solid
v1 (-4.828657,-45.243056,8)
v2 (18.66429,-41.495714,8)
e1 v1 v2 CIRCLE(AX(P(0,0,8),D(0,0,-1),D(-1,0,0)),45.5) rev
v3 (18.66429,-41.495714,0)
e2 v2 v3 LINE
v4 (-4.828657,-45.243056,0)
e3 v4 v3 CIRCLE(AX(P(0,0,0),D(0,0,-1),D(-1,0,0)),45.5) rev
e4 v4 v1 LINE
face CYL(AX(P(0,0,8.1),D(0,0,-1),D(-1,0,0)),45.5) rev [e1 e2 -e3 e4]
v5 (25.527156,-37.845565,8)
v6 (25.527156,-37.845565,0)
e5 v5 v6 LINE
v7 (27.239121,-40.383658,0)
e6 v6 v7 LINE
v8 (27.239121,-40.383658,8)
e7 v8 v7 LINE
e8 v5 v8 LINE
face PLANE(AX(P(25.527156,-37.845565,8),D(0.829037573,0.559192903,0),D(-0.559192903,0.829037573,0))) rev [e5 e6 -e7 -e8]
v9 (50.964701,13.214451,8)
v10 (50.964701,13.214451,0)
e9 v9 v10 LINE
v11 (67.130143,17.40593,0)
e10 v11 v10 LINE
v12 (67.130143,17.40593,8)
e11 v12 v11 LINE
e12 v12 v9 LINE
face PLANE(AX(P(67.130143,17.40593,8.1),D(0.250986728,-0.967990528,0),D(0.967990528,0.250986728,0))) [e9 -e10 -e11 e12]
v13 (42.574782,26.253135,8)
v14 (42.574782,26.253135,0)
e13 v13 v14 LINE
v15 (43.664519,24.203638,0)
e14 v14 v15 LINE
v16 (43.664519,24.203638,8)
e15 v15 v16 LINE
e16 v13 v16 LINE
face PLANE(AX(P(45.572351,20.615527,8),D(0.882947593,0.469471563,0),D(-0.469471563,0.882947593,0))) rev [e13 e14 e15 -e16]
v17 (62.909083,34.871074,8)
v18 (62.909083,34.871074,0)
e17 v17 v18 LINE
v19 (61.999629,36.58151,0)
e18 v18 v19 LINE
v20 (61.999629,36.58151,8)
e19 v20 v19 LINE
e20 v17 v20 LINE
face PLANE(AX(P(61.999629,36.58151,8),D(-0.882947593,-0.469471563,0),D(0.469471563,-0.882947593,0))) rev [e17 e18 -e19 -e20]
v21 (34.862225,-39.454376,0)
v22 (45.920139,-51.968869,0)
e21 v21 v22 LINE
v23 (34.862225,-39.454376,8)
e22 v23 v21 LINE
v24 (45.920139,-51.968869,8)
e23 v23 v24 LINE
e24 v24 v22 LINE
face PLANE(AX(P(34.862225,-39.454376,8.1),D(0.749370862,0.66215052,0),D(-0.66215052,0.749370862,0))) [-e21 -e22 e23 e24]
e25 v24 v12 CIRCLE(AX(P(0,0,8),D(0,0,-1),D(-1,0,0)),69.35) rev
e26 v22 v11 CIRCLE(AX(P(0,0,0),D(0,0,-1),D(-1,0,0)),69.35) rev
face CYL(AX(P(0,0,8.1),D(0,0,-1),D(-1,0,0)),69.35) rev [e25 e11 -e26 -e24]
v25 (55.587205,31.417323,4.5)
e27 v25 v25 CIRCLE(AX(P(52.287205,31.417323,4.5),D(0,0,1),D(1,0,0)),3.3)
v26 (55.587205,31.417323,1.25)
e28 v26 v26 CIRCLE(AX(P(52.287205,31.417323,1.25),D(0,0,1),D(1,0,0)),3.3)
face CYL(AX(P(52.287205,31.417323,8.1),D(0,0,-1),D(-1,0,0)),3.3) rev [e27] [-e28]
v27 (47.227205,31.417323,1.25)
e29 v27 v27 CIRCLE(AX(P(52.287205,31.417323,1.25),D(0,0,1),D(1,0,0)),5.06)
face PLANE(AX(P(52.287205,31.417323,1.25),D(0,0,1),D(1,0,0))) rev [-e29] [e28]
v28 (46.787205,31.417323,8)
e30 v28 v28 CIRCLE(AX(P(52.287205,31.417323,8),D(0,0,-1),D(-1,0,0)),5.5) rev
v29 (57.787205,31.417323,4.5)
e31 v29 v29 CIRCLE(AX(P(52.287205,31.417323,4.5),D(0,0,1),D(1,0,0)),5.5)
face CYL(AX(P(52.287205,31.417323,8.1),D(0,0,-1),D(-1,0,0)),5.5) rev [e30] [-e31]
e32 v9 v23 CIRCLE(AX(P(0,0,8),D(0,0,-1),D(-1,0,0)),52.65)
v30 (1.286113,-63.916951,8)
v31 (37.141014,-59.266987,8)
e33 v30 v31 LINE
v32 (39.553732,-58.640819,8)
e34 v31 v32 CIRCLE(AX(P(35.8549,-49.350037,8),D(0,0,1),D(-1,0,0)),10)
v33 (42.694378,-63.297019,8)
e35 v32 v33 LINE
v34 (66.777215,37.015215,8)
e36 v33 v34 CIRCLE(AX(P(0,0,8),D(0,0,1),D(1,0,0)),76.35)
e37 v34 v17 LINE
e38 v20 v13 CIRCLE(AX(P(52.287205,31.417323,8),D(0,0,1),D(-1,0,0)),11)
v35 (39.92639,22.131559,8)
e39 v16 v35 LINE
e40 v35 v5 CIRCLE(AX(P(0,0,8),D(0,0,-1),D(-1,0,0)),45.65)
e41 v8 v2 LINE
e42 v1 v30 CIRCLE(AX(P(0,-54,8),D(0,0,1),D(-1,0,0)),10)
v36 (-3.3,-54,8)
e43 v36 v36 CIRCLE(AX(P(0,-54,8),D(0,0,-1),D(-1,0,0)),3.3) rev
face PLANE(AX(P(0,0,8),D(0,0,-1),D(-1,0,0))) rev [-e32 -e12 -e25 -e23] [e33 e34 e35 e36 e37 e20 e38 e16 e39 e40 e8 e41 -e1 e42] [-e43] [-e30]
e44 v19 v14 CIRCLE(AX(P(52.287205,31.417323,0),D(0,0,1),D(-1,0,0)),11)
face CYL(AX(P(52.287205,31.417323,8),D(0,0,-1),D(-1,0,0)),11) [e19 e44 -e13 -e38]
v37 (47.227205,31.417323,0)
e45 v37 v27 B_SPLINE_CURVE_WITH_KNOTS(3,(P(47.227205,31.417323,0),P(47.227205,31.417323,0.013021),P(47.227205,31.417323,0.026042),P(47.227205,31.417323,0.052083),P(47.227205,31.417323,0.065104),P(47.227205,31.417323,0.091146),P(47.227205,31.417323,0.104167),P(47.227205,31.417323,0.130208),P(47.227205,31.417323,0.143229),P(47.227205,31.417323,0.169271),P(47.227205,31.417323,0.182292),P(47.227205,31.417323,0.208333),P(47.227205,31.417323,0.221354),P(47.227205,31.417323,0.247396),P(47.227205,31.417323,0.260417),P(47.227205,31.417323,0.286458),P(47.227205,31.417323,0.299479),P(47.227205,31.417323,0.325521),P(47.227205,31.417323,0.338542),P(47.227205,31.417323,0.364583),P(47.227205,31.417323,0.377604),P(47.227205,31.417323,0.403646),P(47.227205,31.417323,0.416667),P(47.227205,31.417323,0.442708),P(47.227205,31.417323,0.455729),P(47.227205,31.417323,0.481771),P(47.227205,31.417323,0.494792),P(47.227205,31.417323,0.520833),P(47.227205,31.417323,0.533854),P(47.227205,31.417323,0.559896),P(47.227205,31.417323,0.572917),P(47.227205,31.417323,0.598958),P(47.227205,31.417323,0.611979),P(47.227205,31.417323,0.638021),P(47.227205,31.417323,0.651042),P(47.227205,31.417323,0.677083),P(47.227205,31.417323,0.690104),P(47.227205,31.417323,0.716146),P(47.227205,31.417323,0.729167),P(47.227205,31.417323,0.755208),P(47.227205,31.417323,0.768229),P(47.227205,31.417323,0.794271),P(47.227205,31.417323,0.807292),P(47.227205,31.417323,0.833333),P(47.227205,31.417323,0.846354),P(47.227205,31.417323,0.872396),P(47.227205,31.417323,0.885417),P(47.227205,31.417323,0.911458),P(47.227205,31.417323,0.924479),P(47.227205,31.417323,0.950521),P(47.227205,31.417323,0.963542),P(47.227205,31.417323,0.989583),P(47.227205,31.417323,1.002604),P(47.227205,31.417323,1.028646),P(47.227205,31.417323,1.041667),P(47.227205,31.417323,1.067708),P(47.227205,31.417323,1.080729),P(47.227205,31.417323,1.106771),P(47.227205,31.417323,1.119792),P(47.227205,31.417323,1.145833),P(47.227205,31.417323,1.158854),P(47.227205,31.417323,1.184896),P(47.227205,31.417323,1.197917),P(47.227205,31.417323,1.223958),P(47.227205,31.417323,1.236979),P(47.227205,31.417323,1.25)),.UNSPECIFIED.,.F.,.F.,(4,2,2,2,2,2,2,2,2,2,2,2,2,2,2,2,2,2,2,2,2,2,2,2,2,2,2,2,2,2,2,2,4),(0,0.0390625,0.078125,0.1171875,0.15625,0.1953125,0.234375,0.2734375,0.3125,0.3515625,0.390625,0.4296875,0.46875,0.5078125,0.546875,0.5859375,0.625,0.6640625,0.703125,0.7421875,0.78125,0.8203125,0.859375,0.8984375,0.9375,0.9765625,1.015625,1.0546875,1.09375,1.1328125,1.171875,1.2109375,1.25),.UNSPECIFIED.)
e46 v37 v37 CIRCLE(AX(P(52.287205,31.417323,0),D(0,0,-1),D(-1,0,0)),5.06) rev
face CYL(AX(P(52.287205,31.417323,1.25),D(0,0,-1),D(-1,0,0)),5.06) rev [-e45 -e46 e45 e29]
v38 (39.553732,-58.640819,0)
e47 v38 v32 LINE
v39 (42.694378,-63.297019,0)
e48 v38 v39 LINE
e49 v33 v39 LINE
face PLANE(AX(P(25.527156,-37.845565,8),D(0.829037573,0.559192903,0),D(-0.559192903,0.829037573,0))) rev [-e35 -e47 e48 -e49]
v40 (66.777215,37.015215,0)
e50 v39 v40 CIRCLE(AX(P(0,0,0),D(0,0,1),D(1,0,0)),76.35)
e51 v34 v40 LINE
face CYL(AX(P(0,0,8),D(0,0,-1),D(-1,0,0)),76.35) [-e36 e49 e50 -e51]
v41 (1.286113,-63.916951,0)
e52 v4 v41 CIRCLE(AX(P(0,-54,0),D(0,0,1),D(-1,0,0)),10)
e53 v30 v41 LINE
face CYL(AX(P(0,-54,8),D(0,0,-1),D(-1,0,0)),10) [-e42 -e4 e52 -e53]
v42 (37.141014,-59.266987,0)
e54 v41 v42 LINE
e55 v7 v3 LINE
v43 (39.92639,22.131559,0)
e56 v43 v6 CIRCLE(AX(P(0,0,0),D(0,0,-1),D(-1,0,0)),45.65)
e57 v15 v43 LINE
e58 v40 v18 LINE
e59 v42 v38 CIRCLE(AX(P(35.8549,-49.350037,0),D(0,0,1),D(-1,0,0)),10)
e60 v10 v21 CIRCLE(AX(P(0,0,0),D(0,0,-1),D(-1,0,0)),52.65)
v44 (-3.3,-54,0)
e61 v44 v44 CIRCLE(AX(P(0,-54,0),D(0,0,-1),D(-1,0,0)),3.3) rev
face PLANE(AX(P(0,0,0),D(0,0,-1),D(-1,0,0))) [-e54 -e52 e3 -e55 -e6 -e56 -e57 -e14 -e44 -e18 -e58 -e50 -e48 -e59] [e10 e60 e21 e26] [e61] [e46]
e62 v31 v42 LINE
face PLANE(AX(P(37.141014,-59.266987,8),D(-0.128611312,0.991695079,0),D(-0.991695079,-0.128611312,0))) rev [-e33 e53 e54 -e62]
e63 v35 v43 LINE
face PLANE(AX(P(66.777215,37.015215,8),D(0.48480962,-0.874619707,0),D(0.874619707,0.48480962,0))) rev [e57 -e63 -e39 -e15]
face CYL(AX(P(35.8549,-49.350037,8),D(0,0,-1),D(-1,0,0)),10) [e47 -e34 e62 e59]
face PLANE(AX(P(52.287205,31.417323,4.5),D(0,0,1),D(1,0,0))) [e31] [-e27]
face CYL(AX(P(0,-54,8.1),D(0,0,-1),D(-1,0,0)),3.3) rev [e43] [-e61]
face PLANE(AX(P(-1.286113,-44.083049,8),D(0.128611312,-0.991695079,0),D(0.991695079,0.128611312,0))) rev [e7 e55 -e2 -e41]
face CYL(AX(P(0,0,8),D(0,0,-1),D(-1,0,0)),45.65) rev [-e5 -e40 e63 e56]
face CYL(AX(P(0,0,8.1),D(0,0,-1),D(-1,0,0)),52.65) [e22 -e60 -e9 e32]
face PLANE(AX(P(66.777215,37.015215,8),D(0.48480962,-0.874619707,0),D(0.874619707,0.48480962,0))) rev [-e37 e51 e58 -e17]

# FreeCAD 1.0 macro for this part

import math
import FreeCAD as App
import Part
import Sketcher
Q = App.Units.Quantity

doc = App.newDocument("Part")
params = doc.addObject("Spreadsheet::Sheet", "Params")
for row, (alias, value) in enumerate([
    ("sketch1_radius", "76.35 mm"),
    ("sketch1_radius2", "45.65 mm"),
    ("pad1_length", "8 mm"),
    ("sketch2_radius", "10 mm"),
    ("pad2_length", "8 mm"),
    ("sketch3_radius", "11 mm"),
    ("pad3_length", "8 mm"),
    ("sketch4_diameter", "91 mm"),
    ("pocket1_length", "8.2 mm"),
    ("sketch5_radius", "69.35 mm"),
    ("sketch5_radius2", "52.65 mm"),
    ("pocket2_length", "8.2 mm"),
    ("sketch6_diameter", "6.6 mm"),
    ("pocket3_length", "8.2 mm"),
    ("sketch7_diameter", "10.12 mm"),
    ("pocket4_length", "1.35 mm"),
    ("sketch8_diameter", "11 mm"),
    ("pocket5_length", "3.6 mm"),
], start=1):
    params.set(f"A{row}", alias)
    params.set(f"B{row}", "=" + value)
    params.setAlias(f"B{row}", alias)

body = doc.addObject("PartDesign::Body", "Body")

# Sketch on XY plane
sketch1 = doc.addObject("Sketcher::SketchObject", "Sketch")
body.addObject(sketch1)
sketch1.AttachmentSupport = (doc.XY_Plane, [""])
sketch1.MapMode = "FlatFace"
sketch1.addGeometry([
    Part.LineSegment(App.Vector(26, -38, 0), App.Vector(43, -63, 0)),
    Part.ArcOfCircle(Part.Circle(App.Vector(0, 0, 0), App.Vector(0, 0, 1), 76), math.radians(-56), math.radians(29)),
    Part.LineSegment(App.Vector(67, 37, 0), App.Vector(40, 22, 0)),
    Part.ArcOfCircle(Part.Circle(App.Vector(0, 0, 0), App.Vector(0, 0, 1), 46), math.radians(-56), math.radians(29)),
], False)
sketch1.addConstraint([
    Sketcher.Constraint("Coincident", 0, 2, 1, 1),
    Sketcher.Constraint("Coincident", 1, 2, 2, 1),
    Sketcher.Constraint("Coincident", 2, 2, 3, 2),
    Sketcher.Constraint("Coincident", 3, 1, 0, 1),
    Sketcher.Constraint("Coincident", 1, 3, -1, 1),
    Sketcher.Constraint("Coincident", 3, 3, -1, 1),
    Sketcher.Constraint("Angle", 0, Q("-56 deg")),
    Sketcher.Constraint("Angle", 2, Q("-151 deg")),
    Sketcher.Constraint("Radius", 1, Q("76.35 mm")),
    Sketcher.Constraint("Radius", 3, Q("45.65 mm")),
    Sketcher.Constraint("DistanceX", -1, 1, 0, 2, Q("42.694378 mm")),
    Sketcher.Constraint("DistanceX", -1, 1, 2, 2, Q("39.92639 mm")),
])
sketch1.setExpression("Constraints[8]", "Params.sketch1_radius")
sketch1.setExpression("Constraints[9]", "Params.sketch1_radius2")
pad1 = doc.addObject("PartDesign::Pad", "Pad")
body.addObject(pad1)
pad1.Profile = sketch1
pad1.setExpression("Length", "Params.pad1_length")

# Sketch on XY plane
sketch2 = doc.addObject("Sketcher::SketchObject", "Sketch001")
body.addObject(sketch2)
sketch2.AttachmentSupport = (doc.XY_Plane, [""])
sketch2.MapMode = "FlatFace"
sketch2.addGeometry([
    Part.LineSegment(App.Vector(35, -39, 0), App.Vector(-1, -44, 0)),
    Part.ArcOfCircle(Part.Circle(App.Vector(0, -54, 0), App.Vector(0, 0, 1), 10), math.radians(97), math.radians(277)),
    Part.LineSegment(App.Vector(1, -64, 0), App.Vector(37, -59, 0)),
    Part.ArcOfCircle(Part.Circle(App.Vector(36, -49, 0), App.Vector(0, 0, 1), 10), math.radians(-83), math.radians(97)),
], False)
sketch2.addConstraint([
    Sketcher.Constraint("Tangent", 0, 2, 1, 1),
    Sketcher.Constraint("Tangent", 1, 2, 2, 1),
    Sketcher.Constraint("Tangent", 2, 2, 3, 1),
    Sketcher.Constraint("Tangent", 3, 2, 0, 1),
    Sketcher.Constraint("Equal", 1, 3),
    Sketcher.Constraint("PointOnObject", 1, 3, -2),
    Sketcher.Constraint("Radius", 1, Q("10 mm")),
    Sketcher.Constraint("DistanceY", 1, 3, -1, 1, Q("54 mm")),
    Sketcher.Constraint("DistanceX", -1, 1, 3, 3, Q("35.8549 mm")),
    Sketcher.Constraint("DistanceY", 1, 2, 0, 2, Q("19.833902 mm")),
])
sketch2.setExpression("Constraints[6]", "Params.sketch2_radius")
pad2 = doc.addObject("PartDesign::Pad", "Pad001")
body.addObject(pad2)
pad2.Profile = sketch2
pad2.setExpression("Length", "Params.pad2_length")

# Sketch on XY plane
sketch3 = doc.addObject("Sketcher::SketchObject", "Sketch002")
body.addObject(sketch3)
sketch3.AttachmentSupport = (doc.XY_Plane, [""])
sketch3.MapMode = "FlatFace"
sketch3.addGeometry([
    Part.LineSegment(App.Vector(43, 26, 0), App.Vector(46, 21, 0)),
    Part.ArcOfCircle(Part.Circle(App.Vector(55, 26, 0), App.Vector(0, 0, 1), 11), math.radians(-152), math.radians(28)),
    Part.LineSegment(App.Vector(65, 31, 0), App.Vector(62, 37, 0)),
    Part.ArcOfCircle(Part.Circle(App.Vector(52, 31, 0), App.Vector(0, 0, 1), 11), math.radians(28), math.radians(208)),
], False)
sketch3.addConstraint([
    Sketcher.Constraint("Tangent", 0, 2, 1, 1),
    Sketcher.Constraint("Tangent", 1, 2, 2, 1),
    Sketcher.Constraint("Tangent", 2, 2, 3, 1),
    Sketcher.Constraint("Tangent", 3, 2, 0, 1),
    Sketcher.Constraint("Equal", 1, 3),
    Sketcher.Constraint("Radius", 1, Q("11 mm")),
    Sketcher.Constraint("Angle", 0, Q("-62 deg")),
    Sketcher.Constraint("DistanceX", -1, 1, 1, 2, Q("64.997199 mm")),
    Sketcher.Constraint("DistanceY", -1, 1, 1, 2, Q("30.943901 mm")),
    Sketcher.Constraint("DistanceX", -1, 1, 2, 2, Q("61.999629 mm")),
])
sketch3.setExpression("Constraints[5]", "Params.sketch3_radius")
pad3 = doc.addObject("PartDesign::Pad", "Pad002")
body.addObject(pad3)
pad3.Profile = sketch3
pad3.setExpression("Length", "Params.pad3_length")

# Sketch on XY plane
sketch4 = doc.addObject("Sketcher::SketchObject", "Sketch003")
body.addObject(sketch4)
sketch4.AttachmentSupport = (doc.XY_Plane, [""])
sketch4.MapMode = "FlatFace"
sketch4.AttachmentOffset = App.Placement(App.Vector(0, 0, -0.1), App.Rotation())
sketch4.addGeometry(Part.Circle(App.Vector(0, 0, 0), App.Vector(0, 0, 1), 46), False)
sketch4.addConstraint([
    Sketcher.Constraint("Coincident", 0, 3, -1, 1),
    Sketcher.Constraint("Diameter", 0, Q("91 mm")),
])
sketch4.setExpression("Constraints[1]", "Params.sketch4_diameter")
pocket1 = doc.addObject("PartDesign::Pocket", "Pocket")
body.addObject(pocket1)
pocket1.Profile = sketch4
pocket1.setExpression("Length", "Params.pocket1_length")
pocket1.Reversed = True

# Sketch on XY plane
sketch5 = doc.addObject("Sketcher::SketchObject", "Sketch004")
body.addObject(sketch5)
sketch5.AttachmentSupport = (doc.XY_Plane, [""])
sketch5.MapMode = "FlatFace"
sketch5.AttachmentOffset = App.Placement(App.Vector(0, 0, -0.1), App.Rotation())
sketch5.addGeometry([
    Part.LineSegment(App.Vector(35, -39, 0), App.Vector(46, -52, 0)),
    Part.ArcOfCircle(Part.Circle(App.Vector(0, 0, 0), App.Vector(0, 0, 1), 69), math.radians(-49), math.radians(15)),
    Part.LineSegment(App.Vector(67, 17, 0), App.Vector(51, 13, 0)),
    Part.ArcOfCircle(Part.Circle(App.Vector(0, 0, 0), App.Vector(0, 0, 1), 53), math.radians(-49), math.radians(15)),
], False)
sketch5.addConstraint([
    Sketcher.Constraint("Coincident", 0, 2, 1, 1),
    Sketcher.Constraint("Coincident", 1, 2, 2, 1),
    Sketcher.Constraint("Coincident", 2, 2, 3, 2),
    Sketcher.Constraint("Coincident", 3, 1, 0, 1),
    Sketcher.Constraint("Coincident", 1, 3, -1, 1),
    Sketcher.Constraint("Coincident", 3, 3, -1, 1),
    Sketcher.Constraint("Radius", 1, Q("69.35 mm")),
    Sketcher.Constraint("Radius", 3, Q("52.65 mm")),
    Sketcher.Constraint("DistanceX", -1, 1, 2, 2, Q("50.964701 mm")),
    Sketcher.Constraint("DistanceY", 0, 2, 1, 2, Q("69.374799 mm")),
    Sketcher.Constraint("DistanceX", -1, 1, 0, 2, Q("45.920139 mm")),
    Sketcher.Constraint("DistanceX", 3, 1, 1, 2, Q("32.267918 mm")),
])
sketch5.setExpression("Constraints[6]", "Params.sketch5_radius")
sketch5.setExpression("Constraints[7]", "Params.sketch5_radius2")
pocket2 = doc.addObject("PartDesign::Pocket", "Pocket001")
body.addObject(pocket2)
pocket2.Profile = sketch5
pocket2.setExpression("Length", "Params.pocket2_length")
pocket2.Reversed = True

# Sketch on XY plane
sketch6 = doc.addObject("Sketcher::SketchObject", "Sketch005")
body.addObject(sketch6)
sketch6.AttachmentSupport = (doc.XY_Plane, [""])
sketch6.MapMode = "FlatFace"
sketch6.AttachmentOffset = App.Placement(App.Vector(0, 0, -0.1), App.Rotation())
sketch6.addGeometry([
    Part.Circle(App.Vector(0, -54, 0), App.Vector(0, 0, 1), 3.3),
    Part.Circle(App.Vector(52.3, 31.4, 0), App.Vector(0, 0, 1), 3.3),
], False)
sketch6.addConstraint([
    Sketcher.Constraint("Equal", 0, 1),
    Sketcher.Constraint("PointOnObject", 0, 3, -2),
    Sketcher.Constraint("Diameter", 0, Q("6.6 mm")),
    Sketcher.Constraint("DistanceY", 0, 3, -1, 1, Q("54 mm")),
    Sketcher.Constraint("DistanceX", -1, 1, 1, 3, Q("52.287205 mm")),
    Sketcher.Constraint("DistanceY", -1, 1, 1, 3, Q("31.417323 mm")),
])
sketch6.setExpression("Constraints[2]", "Params.sketch6_diameter")
pocket3 = doc.addObject("PartDesign::Pocket", "Pocket002")
body.addObject(pocket3)
pocket3.Profile = sketch6
pocket3.setExpression("Length", "Params.pocket3_length")
pocket3.Reversed = True

# Sketch on XY plane
sketch7 = doc.addObject("Sketcher::SketchObject", "Sketch006")
body.addObject(sketch7)
sketch7.AttachmentSupport = (doc.XY_Plane, [""])
sketch7.MapMode = "FlatFace"
sketch7.AttachmentOffset = App.Placement(App.Vector(0, 0, -0.1), App.Rotation())
sketch7.addGeometry(Part.Circle(App.Vector(52, 31, 0), App.Vector(0, 0, 1), 5), False)
sketch7.addConstraint([
    Sketcher.Constraint("Diameter", 0, Q("10.12 mm")),
    Sketcher.Constraint("DistanceX", -1, 1, 0, 3, Q("52.287205 mm")),
    Sketcher.Constraint("DistanceY", -1, 1, 0, 3, Q("31.417323 mm")),
])
sketch7.setExpression("Constraints[0]", "Params.sketch7_diameter")
pocket4 = doc.addObject("PartDesign::Pocket", "Pocket003")
body.addObject(pocket4)
pocket4.Profile = sketch7
pocket4.setExpression("Length", "Params.pocket4_length")
pocket4.Reversed = True

# Sketch on XY plane
sketch8 = doc.addObject("Sketcher::SketchObject", "Sketch007")
body.addObject(sketch8)
sketch8.AttachmentSupport = (doc.XY_Plane, [""])
sketch8.MapMode = "FlatFace"
sketch8.AttachmentOffset = App.Placement(App.Vector(0, 0, 4.5), App.Rotation())
sketch8.addGeometry(Part.Circle(App.Vector(52, 31, 0), App.Vector(0, 0, 1), 6), False)
sketch8.addConstraint([
    Sketcher.Constraint("Diameter", 0, Q("11 mm")),
    Sketcher.Constraint("DistanceX", -1, 1, 0, 3, Q("52.287205 mm")),
    Sketcher.Constraint("DistanceY", -1, 1, 0, 3, Q("31.417323 mm")),
])
sketch8.setExpression("Constraints[0]", "Params.sketch8_diameter")
pocket5 = doc.addObject("PartDesign::Pocket", "Pocket004")
body.addObject(pocket5)
pocket5.Profile = sketch8
pocket5.setExpression("Length", "Params.pocket5_length")
pocket5.Reversed = True

doc.recompute()
